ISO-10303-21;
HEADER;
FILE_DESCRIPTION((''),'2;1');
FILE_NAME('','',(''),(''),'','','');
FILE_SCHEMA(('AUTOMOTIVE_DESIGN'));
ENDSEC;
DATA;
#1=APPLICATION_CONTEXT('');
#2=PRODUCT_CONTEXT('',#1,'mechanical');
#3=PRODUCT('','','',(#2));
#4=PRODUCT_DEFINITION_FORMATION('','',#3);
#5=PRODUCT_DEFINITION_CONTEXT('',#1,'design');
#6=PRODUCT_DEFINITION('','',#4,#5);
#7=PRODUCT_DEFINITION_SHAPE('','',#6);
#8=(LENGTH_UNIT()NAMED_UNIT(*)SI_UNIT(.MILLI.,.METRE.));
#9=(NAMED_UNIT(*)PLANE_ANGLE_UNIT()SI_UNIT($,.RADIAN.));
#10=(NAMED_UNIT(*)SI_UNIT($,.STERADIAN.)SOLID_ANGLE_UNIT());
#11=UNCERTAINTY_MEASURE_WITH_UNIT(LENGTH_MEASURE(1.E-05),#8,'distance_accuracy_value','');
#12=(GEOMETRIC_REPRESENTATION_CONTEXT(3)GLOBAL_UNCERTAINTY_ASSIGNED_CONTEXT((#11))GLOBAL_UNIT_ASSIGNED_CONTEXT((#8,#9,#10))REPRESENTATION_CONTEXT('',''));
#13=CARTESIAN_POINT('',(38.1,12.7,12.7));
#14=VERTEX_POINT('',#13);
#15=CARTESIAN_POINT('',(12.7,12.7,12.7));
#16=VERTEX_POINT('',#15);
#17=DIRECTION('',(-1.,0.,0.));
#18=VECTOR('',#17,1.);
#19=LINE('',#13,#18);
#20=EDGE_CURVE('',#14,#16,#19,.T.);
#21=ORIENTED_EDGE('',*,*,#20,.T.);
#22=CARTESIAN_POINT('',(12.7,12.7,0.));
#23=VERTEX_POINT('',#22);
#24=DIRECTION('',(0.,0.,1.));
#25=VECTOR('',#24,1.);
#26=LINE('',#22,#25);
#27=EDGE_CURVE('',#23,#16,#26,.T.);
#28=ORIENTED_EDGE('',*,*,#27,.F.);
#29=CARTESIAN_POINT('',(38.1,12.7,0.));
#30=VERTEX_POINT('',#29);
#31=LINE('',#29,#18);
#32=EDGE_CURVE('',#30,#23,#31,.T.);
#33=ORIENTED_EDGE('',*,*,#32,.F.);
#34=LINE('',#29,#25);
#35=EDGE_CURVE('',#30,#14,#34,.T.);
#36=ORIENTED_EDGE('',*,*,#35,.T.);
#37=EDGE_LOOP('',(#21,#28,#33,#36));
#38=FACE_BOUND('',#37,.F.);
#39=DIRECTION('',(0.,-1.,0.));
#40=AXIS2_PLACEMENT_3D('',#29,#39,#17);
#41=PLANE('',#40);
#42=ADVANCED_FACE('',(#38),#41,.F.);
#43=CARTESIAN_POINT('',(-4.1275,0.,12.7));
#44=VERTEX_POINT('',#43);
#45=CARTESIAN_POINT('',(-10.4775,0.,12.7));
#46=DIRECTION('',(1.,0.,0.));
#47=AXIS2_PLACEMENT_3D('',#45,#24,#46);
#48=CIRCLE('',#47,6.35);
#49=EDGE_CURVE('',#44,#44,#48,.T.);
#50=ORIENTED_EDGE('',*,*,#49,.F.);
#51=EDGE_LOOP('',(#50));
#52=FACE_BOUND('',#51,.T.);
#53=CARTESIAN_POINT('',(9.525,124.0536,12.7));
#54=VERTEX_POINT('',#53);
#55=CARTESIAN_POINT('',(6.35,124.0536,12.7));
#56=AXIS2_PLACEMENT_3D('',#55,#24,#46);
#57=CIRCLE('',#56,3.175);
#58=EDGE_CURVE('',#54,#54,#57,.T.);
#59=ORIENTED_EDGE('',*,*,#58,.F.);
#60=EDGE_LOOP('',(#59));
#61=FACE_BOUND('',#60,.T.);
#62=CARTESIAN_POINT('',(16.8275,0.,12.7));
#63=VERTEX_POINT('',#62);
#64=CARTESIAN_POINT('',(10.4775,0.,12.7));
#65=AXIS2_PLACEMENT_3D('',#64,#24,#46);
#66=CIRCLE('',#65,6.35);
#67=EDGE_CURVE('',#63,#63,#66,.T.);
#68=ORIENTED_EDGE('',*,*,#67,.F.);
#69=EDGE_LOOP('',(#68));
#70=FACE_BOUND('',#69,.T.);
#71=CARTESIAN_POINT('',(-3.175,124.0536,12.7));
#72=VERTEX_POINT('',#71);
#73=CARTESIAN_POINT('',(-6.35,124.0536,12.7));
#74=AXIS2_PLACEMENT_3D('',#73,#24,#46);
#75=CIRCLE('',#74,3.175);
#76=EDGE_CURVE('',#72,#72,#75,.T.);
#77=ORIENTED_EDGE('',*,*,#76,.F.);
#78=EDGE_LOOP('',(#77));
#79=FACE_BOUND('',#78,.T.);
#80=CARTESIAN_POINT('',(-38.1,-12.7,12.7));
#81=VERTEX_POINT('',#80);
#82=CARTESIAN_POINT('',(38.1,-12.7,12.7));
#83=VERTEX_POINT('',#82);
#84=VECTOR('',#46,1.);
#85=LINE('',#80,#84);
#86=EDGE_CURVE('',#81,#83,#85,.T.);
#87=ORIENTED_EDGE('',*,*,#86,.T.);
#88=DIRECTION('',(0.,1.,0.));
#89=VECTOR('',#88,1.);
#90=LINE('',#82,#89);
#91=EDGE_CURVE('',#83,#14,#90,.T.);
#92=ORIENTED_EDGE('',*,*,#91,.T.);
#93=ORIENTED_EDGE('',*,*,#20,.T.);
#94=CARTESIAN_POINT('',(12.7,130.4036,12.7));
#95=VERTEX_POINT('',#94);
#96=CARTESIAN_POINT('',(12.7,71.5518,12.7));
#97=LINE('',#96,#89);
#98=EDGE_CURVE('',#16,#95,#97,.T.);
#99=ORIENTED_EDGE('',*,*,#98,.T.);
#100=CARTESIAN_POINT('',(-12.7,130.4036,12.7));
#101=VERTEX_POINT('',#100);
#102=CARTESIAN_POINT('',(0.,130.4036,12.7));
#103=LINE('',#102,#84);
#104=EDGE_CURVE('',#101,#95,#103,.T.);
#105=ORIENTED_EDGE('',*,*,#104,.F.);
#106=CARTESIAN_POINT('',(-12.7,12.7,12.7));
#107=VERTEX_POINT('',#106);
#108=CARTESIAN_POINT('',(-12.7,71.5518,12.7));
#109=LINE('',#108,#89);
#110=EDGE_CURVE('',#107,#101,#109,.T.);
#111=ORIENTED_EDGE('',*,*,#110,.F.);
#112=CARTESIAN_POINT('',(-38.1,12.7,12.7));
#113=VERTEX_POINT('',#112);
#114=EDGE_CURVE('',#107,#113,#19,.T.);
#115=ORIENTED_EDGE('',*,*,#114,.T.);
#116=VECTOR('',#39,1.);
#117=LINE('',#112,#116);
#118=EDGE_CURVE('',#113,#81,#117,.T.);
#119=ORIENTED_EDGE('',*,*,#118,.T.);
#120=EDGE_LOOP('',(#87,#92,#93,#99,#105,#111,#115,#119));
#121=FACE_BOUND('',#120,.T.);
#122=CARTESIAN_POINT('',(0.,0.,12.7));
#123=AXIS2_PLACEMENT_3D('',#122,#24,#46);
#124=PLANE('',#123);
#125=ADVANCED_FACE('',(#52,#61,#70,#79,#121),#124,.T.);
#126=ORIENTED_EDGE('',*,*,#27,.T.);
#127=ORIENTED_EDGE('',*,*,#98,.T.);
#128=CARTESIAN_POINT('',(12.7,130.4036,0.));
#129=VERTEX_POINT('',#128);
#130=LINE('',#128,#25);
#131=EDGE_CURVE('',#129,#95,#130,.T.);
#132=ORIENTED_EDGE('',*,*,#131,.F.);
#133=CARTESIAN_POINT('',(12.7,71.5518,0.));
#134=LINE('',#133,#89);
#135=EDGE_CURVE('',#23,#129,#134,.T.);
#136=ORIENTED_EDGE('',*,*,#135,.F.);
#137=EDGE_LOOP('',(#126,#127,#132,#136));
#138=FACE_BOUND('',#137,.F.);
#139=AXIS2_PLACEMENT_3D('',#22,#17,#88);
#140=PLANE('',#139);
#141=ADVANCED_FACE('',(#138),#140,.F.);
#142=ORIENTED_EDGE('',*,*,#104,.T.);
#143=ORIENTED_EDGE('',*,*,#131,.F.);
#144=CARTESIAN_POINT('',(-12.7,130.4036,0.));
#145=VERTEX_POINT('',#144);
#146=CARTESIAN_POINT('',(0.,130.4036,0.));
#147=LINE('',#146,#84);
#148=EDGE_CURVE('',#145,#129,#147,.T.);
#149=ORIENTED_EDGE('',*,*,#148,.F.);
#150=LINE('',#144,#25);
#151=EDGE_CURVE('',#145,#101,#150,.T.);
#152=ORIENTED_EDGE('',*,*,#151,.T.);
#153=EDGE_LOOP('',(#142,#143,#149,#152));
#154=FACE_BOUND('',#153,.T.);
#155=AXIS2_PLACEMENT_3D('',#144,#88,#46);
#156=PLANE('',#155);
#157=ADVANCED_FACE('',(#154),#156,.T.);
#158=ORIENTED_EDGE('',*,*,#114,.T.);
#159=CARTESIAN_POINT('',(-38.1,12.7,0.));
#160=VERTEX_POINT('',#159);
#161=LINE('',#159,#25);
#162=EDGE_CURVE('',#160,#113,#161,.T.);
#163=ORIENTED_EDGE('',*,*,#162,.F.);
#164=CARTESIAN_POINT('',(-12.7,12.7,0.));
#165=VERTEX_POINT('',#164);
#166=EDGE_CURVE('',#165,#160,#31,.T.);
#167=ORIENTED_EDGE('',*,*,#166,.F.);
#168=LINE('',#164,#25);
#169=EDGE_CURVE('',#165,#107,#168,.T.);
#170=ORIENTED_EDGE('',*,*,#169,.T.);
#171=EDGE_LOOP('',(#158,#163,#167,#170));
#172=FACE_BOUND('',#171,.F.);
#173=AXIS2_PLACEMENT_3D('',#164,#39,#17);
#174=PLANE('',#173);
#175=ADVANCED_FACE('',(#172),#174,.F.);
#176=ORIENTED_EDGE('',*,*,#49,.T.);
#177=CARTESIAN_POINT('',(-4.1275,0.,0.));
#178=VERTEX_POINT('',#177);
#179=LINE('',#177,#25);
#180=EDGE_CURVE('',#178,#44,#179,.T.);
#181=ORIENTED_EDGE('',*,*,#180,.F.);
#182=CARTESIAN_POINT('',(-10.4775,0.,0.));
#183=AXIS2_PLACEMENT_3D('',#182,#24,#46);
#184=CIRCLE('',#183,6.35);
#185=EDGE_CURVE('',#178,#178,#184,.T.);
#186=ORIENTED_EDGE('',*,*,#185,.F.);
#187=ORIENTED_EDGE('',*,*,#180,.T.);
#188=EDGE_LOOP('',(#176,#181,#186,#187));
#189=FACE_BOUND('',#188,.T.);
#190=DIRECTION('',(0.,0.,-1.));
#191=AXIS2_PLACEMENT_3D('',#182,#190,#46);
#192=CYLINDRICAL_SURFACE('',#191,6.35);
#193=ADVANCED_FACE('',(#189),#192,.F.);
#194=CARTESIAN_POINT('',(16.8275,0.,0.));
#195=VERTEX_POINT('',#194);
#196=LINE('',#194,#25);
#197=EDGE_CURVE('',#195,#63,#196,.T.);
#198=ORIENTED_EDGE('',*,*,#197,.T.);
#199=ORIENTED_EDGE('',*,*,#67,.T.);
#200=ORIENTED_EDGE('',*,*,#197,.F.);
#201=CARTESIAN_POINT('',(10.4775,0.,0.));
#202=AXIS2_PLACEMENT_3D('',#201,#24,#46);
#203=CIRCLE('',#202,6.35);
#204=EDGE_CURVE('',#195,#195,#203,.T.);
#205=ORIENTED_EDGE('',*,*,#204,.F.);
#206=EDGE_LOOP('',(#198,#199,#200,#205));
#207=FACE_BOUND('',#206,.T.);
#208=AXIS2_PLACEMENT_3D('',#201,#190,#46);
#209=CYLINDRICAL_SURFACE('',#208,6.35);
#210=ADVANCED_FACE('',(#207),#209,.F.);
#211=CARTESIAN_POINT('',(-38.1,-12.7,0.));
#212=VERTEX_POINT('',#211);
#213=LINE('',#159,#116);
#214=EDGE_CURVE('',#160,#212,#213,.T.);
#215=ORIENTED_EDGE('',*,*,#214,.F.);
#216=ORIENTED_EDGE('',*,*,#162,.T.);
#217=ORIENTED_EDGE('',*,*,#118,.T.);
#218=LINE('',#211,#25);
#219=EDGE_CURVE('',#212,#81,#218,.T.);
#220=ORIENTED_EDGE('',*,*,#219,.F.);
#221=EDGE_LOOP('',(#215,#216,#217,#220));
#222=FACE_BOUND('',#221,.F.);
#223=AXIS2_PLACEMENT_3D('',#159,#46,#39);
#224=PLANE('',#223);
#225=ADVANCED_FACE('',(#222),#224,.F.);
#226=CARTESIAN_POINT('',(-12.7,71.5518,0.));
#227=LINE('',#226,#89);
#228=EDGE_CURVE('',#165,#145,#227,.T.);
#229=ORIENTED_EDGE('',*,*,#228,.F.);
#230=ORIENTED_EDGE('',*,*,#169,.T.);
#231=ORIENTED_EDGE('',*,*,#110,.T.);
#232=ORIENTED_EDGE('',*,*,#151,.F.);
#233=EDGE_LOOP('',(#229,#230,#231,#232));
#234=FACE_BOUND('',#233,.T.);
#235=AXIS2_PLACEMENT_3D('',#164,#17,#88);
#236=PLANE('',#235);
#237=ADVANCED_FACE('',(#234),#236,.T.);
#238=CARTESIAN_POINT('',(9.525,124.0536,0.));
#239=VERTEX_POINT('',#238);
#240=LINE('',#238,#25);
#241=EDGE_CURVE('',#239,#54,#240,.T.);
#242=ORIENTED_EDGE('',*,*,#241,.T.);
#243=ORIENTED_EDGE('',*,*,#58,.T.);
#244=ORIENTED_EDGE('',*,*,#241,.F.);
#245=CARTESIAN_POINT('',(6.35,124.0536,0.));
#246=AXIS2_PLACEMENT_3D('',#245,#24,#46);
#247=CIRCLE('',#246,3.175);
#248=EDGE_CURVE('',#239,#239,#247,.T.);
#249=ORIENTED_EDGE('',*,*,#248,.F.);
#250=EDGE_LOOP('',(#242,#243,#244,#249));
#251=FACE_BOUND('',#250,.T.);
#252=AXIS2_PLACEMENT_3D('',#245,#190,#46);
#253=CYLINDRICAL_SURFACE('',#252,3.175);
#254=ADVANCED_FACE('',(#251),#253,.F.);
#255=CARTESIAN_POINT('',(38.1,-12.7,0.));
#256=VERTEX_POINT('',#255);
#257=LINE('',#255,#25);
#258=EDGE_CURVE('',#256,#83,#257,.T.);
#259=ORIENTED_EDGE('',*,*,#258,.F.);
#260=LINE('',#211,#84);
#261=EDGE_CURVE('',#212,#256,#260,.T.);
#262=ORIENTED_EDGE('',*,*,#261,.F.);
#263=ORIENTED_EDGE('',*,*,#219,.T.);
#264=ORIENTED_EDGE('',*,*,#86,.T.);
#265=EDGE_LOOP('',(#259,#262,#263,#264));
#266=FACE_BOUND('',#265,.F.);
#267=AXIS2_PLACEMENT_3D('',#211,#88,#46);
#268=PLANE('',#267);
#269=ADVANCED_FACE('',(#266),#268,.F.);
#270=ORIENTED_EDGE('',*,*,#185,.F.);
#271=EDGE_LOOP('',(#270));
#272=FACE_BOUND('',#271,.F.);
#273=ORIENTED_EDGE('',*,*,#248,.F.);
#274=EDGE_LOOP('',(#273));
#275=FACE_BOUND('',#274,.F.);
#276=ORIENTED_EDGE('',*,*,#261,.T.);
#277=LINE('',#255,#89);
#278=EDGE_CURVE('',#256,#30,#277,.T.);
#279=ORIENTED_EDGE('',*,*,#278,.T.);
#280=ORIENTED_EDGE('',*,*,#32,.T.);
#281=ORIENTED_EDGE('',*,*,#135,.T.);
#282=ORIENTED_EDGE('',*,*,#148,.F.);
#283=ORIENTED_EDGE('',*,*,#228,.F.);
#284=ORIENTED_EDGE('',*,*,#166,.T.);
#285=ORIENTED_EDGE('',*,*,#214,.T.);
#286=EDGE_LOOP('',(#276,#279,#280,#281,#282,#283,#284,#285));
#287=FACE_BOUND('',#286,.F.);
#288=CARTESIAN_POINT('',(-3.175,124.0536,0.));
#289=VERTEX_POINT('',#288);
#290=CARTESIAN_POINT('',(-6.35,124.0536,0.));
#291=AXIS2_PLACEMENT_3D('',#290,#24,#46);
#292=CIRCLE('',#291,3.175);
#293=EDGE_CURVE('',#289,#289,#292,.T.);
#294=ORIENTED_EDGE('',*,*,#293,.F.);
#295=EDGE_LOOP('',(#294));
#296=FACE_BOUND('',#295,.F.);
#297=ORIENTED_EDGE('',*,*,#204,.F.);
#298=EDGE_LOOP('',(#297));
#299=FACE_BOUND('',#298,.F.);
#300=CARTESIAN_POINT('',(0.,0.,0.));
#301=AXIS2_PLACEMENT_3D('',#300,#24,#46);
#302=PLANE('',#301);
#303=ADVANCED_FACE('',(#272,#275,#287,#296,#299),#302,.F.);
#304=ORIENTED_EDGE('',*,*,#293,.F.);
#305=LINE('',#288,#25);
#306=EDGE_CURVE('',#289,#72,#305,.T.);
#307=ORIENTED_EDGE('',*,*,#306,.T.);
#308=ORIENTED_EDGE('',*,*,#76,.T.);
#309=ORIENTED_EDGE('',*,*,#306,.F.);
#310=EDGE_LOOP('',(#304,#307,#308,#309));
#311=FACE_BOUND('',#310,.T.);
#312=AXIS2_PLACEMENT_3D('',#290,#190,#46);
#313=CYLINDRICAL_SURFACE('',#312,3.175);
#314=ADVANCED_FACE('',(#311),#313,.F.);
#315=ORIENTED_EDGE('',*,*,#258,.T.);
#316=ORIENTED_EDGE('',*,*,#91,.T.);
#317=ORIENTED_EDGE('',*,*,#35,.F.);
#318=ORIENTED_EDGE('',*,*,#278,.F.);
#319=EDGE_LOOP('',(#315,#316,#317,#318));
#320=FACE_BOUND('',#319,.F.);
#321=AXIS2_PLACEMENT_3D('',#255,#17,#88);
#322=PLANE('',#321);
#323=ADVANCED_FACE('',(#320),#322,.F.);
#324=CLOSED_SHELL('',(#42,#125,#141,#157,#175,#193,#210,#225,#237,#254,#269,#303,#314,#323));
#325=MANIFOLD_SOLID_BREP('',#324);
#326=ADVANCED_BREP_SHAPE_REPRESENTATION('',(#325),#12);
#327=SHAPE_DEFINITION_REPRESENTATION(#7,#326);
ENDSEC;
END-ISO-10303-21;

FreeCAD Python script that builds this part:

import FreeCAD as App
import Part
import Sketcher
from FreeCAD import Vector
Q = App.Units.Quantity


def add_polygon(sketch, points):
    """Adds a closed chain of lines whose ends are joined by coincident constraints."""
    first, n = sketch.GeometryCount, len(points)
    for a, b in zip(points, points[1:] + points[:1]):
        sketch.addGeometry(Part.LineSegment(App.Vector(*a, 0), App.Vector(*b, 0)), False)
    for i in range(n):
        sketch.addConstraint(Sketcher.Constraint("Coincident", first + i, 2, first + (i + 1) % n, 1))

doc = App.newDocument("Part")
body = doc.addObject("PartDesign::Body", "Body")

# Sketch on XY plane
sketch1 = body.newObject("Sketcher::SketchObject", "Sketch")
sketch1.AttachmentSupport = (doc.getObject("XY_Plane"), [""])
sketch1.MapMode = "FlatFace"
add_polygon(sketch1, [(38.1, -12.7), (38.1, 12.7), (12.7, 12.7), (12.7, 130.4036), (-12.7, 130.4036), (-12.7, 12.7), (-38.1, 12.7), (-38.1, -12.7)])  # lines 0-7
sketch1.addGeometry(Part.Circle(Vector(-10.4775, 0, 0), Vector(0, 0, 1), 6.35), False)  # 8
sketch1.addGeometry(Part.Circle(Vector(10.4775, 0, 0), Vector(0, 0, 1), 6.35), False)  # 9
sketch1.addGeometry(Part.Circle(Vector(-6.35, 124.0536, 0), Vector(0, 0, 1), 3.175), False)  # 10
sketch1.addGeometry(Part.Circle(Vector(6.35, 124.0536, 0), Vector(0, 0, 1), 3.175), False)  # 11
sketch1.addConstraint([
    Sketcher.Constraint("Vertical", 0),
    Sketcher.Constraint("Horizontal", 1),
    Sketcher.Constraint("Vertical", 2),
    Sketcher.Constraint("Horizontal", 3),
    Sketcher.Constraint("Vertical", 4),
    Sketcher.Constraint("Horizontal", 5),
    Sketcher.Constraint("Vertical", 6),
    Sketcher.Constraint("Horizontal", 7),
    Sketcher.Constraint("Equal", 8, 9),
    Sketcher.Constraint("Equal", 10, 11),
    Sketcher.Constraint("Symmetric", 8, 3, 9, 3, -1, 1),
    Sketcher.Constraint("Symmetric", 0, 2, 6, 2, -1, 1),
    Sketcher.Constraint("Symmetric", 10, 3, 11, 3, -2),
    Sketcher.Constraint("Symmetric", 1, 2, 4, 2, -2),
    Sketcher.Constraint("PointOnObject", 8, 3, -1),
    Sketcher.Constraint("Equal", 1, 3),
    Sketcher.Constraint("Equal", 5, 0),
    Sketcher.Constraint("Diameter", 8, Q("0.5 in")),
    Sketcher.Constraint("Diameter", 10, Q("0.25 in")),
    Sketcher.Constraint("DistanceX", 1, 2, 1, 1, Q("1 in")),
    Sketcher.Constraint("DistanceX", 10, 3, 11, 3, Q("0.5 in")),
    Sketcher.Constraint("DistanceY", 2, 1, 2, 2, Q("4.634 in")),
    Sketcher.Constraint("DistanceY", 11, 3, 2, 2, Q("0.25 in")),
    Sketcher.Constraint("DistanceX", 8, 3, 9, 3, Q("0.825 in")),
])
pad1 = body.newObject("PartDesign::Pad", "Pad")
pad1.Profile = sketch1
pad1.Length = Q("0.5 in")

doc.recompute()
